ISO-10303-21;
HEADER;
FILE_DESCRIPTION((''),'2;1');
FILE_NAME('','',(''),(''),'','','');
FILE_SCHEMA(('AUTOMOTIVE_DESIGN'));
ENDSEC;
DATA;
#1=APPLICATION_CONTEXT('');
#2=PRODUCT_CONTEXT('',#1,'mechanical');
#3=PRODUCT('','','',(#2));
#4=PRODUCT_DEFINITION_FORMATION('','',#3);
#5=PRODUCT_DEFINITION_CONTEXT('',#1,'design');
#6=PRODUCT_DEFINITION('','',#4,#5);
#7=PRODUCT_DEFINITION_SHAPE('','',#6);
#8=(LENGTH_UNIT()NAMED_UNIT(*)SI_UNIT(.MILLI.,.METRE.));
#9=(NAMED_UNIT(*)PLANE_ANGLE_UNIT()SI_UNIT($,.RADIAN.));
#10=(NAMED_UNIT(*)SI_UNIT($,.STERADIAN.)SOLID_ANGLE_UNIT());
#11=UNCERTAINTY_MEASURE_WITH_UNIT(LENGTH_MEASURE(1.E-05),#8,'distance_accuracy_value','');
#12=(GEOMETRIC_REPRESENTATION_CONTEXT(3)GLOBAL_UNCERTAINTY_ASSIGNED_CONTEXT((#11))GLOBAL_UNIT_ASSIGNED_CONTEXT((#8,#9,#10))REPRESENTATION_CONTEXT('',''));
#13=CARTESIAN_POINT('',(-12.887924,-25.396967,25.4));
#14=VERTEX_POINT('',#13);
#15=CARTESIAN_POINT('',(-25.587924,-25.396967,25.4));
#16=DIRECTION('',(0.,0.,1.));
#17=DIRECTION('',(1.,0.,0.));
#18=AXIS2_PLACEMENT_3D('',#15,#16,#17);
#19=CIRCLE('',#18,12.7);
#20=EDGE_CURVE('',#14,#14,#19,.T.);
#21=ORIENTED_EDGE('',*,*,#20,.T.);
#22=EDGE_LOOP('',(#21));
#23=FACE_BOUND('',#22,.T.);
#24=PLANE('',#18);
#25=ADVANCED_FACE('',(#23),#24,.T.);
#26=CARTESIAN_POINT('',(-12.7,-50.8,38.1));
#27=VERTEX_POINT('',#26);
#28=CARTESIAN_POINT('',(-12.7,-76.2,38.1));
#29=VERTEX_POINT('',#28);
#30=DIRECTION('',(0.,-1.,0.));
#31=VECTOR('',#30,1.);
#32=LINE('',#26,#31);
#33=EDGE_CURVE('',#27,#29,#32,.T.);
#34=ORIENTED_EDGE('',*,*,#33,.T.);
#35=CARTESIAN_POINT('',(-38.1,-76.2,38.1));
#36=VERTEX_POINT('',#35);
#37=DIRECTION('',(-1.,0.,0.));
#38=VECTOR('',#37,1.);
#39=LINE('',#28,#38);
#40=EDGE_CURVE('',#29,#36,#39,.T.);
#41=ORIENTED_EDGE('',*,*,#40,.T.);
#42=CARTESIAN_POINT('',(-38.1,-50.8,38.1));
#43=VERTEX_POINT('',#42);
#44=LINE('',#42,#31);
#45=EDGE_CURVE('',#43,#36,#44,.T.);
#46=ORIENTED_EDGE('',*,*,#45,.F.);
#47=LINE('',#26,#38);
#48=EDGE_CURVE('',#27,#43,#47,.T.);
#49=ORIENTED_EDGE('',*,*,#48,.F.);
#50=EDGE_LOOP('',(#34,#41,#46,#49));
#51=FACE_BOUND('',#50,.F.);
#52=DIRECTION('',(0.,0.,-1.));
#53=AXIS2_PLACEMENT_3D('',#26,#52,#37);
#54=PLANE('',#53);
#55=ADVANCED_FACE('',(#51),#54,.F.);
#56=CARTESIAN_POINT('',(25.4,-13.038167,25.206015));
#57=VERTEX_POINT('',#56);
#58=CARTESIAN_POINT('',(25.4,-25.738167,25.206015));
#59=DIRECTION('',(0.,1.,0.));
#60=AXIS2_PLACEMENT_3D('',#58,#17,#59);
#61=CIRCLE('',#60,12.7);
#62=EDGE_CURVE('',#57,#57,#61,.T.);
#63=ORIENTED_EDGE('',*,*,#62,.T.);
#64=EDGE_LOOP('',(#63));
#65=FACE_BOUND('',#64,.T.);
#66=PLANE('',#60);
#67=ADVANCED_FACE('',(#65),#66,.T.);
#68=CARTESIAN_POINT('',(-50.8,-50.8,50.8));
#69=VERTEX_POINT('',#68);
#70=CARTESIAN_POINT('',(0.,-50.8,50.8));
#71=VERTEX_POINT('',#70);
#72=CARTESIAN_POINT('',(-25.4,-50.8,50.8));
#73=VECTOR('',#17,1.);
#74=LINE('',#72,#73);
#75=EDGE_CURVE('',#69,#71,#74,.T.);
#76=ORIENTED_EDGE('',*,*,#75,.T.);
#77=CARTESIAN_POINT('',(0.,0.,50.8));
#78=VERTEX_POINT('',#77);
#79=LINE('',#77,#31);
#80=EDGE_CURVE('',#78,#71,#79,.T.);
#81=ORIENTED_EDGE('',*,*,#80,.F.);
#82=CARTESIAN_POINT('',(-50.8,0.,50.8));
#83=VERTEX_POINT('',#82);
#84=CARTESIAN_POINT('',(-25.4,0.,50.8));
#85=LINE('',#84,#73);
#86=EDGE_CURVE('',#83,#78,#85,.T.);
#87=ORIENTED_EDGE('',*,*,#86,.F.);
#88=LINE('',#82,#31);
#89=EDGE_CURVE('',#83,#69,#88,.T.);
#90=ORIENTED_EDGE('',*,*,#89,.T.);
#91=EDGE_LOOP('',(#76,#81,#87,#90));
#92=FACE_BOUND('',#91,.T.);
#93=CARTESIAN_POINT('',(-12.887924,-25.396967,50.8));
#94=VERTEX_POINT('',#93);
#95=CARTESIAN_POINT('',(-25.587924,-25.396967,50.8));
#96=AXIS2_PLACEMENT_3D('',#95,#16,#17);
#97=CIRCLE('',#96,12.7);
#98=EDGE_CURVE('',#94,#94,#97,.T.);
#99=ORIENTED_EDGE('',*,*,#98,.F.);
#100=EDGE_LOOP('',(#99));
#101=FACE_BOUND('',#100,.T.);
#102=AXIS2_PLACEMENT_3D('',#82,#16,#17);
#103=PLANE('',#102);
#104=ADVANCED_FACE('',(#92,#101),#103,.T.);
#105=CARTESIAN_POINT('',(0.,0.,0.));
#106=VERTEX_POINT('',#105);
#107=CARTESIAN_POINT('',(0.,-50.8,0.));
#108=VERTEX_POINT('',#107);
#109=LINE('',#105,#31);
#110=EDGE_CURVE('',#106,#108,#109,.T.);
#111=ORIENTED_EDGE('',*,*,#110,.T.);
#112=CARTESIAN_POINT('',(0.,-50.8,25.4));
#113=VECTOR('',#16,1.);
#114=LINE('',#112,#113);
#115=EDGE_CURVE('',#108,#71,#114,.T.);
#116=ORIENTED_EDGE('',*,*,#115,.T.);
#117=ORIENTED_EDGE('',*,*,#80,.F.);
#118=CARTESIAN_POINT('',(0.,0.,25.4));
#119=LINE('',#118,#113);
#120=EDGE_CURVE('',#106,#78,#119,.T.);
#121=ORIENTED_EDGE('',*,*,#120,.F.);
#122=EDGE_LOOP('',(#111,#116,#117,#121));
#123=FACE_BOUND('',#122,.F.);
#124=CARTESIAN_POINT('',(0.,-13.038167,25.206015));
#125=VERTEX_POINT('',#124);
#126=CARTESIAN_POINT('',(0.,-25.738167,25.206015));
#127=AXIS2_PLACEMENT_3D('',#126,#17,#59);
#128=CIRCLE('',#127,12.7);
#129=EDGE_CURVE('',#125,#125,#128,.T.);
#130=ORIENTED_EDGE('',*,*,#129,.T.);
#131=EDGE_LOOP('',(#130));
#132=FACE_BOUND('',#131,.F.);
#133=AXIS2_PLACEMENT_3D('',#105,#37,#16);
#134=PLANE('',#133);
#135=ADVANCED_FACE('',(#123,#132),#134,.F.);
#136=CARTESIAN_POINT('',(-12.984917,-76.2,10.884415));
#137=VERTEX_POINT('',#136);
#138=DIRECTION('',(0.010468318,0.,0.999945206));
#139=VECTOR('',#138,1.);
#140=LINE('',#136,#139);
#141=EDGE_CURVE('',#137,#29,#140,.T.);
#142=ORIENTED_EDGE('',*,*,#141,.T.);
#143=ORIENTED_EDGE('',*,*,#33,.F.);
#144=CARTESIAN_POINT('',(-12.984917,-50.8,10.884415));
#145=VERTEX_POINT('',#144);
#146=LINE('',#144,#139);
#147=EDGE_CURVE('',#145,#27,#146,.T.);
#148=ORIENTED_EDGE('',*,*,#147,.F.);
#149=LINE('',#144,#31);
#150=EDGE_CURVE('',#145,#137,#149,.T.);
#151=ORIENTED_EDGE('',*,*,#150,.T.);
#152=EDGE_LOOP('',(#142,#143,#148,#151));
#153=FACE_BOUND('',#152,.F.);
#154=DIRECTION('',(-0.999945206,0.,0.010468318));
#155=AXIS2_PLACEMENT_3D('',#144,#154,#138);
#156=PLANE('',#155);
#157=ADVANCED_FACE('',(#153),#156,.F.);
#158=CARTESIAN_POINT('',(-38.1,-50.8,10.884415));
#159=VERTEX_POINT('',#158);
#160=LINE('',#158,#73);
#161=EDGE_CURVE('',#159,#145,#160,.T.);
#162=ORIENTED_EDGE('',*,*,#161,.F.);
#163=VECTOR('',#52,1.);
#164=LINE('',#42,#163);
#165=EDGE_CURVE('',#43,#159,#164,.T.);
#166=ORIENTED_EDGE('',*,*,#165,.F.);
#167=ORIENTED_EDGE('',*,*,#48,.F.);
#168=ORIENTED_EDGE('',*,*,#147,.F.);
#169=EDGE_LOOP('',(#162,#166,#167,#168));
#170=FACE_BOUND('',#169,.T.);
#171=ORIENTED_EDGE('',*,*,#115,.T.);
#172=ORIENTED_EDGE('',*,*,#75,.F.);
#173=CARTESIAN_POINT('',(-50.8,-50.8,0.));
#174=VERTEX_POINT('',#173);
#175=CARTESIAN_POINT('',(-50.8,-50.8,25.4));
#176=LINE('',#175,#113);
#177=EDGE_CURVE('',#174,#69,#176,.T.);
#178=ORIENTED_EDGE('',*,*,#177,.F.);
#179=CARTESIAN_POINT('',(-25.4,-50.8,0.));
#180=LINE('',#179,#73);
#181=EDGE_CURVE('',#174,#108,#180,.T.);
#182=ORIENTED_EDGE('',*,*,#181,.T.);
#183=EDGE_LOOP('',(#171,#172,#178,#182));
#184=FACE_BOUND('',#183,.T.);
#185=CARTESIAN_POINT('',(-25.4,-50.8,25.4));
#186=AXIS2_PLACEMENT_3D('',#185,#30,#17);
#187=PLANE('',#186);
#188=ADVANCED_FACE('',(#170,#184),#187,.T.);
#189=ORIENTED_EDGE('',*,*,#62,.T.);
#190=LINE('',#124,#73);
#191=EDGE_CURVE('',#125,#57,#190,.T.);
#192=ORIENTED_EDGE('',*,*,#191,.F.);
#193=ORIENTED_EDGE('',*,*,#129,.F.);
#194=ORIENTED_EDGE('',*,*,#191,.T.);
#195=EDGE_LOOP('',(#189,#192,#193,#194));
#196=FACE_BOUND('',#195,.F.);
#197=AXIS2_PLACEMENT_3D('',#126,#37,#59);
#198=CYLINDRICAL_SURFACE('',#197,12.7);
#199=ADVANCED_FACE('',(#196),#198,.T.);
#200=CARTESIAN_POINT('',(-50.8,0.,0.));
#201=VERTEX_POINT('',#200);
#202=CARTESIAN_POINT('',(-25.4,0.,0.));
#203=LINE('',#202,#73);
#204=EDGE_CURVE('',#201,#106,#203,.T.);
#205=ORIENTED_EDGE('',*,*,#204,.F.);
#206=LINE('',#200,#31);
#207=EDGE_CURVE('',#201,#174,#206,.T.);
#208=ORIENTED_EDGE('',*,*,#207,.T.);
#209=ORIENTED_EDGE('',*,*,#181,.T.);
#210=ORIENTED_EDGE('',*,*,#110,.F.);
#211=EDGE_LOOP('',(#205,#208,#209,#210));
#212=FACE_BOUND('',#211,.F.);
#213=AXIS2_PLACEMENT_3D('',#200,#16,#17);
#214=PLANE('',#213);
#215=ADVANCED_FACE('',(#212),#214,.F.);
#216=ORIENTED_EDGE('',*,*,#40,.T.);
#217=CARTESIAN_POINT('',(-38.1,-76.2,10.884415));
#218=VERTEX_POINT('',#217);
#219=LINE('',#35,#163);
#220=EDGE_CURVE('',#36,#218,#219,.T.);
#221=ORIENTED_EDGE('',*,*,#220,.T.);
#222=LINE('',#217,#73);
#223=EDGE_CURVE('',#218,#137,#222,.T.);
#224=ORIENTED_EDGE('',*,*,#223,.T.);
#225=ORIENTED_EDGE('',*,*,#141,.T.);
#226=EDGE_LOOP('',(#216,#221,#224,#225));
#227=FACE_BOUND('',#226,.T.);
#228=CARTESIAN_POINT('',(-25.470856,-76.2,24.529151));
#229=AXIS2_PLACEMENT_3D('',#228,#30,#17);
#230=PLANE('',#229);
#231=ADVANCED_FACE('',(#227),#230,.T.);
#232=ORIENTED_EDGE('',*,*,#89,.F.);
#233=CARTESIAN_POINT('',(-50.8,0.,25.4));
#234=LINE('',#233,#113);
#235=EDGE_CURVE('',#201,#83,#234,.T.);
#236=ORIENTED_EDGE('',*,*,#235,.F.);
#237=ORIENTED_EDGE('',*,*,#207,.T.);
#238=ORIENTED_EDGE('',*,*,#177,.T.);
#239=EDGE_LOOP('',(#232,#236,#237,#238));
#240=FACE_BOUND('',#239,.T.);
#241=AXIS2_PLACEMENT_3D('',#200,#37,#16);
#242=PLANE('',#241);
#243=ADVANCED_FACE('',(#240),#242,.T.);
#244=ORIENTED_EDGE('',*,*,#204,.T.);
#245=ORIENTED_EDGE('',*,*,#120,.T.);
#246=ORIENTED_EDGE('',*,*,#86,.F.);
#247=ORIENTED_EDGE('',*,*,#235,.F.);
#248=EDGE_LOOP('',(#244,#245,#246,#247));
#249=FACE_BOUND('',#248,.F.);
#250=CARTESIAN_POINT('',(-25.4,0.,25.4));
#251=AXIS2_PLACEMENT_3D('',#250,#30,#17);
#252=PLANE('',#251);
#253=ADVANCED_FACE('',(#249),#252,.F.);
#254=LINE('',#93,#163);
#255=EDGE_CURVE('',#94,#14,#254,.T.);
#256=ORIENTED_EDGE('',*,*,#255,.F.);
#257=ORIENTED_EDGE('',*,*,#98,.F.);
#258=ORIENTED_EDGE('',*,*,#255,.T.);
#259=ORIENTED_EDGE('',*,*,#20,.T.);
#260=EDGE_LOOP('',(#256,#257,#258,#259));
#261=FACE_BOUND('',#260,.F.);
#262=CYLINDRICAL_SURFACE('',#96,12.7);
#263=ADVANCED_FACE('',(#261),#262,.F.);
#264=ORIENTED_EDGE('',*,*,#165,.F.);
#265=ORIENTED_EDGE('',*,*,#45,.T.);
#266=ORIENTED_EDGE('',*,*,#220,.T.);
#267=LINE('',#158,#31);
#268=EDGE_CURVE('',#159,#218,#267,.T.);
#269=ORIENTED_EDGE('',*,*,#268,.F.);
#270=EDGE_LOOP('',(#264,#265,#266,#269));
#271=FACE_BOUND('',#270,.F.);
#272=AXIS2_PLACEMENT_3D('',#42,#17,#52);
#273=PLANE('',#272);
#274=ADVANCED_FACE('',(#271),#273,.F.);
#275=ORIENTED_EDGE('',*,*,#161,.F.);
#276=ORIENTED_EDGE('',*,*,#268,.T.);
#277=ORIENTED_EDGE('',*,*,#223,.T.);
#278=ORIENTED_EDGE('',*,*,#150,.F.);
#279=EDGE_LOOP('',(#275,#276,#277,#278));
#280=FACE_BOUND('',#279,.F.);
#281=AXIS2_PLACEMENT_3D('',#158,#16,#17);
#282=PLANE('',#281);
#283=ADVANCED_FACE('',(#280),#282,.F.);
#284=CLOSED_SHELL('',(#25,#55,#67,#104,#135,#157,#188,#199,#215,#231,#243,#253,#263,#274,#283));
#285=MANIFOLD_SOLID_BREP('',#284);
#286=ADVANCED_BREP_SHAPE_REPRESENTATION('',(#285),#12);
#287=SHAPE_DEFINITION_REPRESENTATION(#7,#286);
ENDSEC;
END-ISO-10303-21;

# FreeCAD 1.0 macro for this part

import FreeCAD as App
import Part
import Sketcher

V = App.Vector
Q = App.Units.Quantity


def add_polygon(sketch, points):
    """Adds a closed chain of lines whose ends are joined by coincident constraints."""
    first, n = sketch.GeometryCount, len(points)
    for a, b in zip(points, points[1:] + points[:1]):
        sketch.addGeometry(Part.LineSegment(App.Vector(*a, 0), App.Vector(*b, 0)), False)
    for i in range(n):
        sketch.addConstraint(Sketcher.Constraint("Coincident", first + i, 2, first + (i + 1) % n, 1))

doc = App.newDocument("Part")
body = doc.addObject("PartDesign::Body", "Body")

# Sketch on XZ plane
sketch1 = body.newObject("Sketcher::SketchObject", "Sketch")
sketch1.AttachmentSupport = (doc.getObject("XZ_Plane"), [""])
sketch1.MapMode = "FlatFace"
add_polygon(sketch1, [(-51, 51), (-51, 0), (0, 0), (0, 51)])  # lines 0-3
sketch1.addConstraint(Sketcher.Constraint("Vertical", 0))
sketch1.addConstraint(Sketcher.Constraint("Horizontal", 1))
sketch1.addConstraint(Sketcher.Constraint("Vertical", 2))
sketch1.addConstraint(Sketcher.Constraint("Horizontal", 3))
sketch1.addConstraint(Sketcher.Constraint("Coincident", 1, 2, -1, 1))
sketch1.addConstraint(Sketcher.Constraint("Equal", 3, 0))
sketch1.addConstraint(Sketcher.Constraint("DistanceX", 1, 1, 1, 2, Q("2 in")))
pad1 = body.newObject("PartDesign::Pad", "Pad")
pad1.Profile = sketch1
pad1.Length = Q("2 in")

# Sketch on XZ plane
sketch2 = body.newObject("Sketcher::SketchObject", "Sketch001")
sketch2.AttachmentSupport = (doc.getObject("XZ_Plane"), [""])
sketch2.MapMode = "FlatFace"
sketch2.AttachmentOffset = App.Placement(V(0, 0, 2 * 25.4), App.Rotation())
add_polygon(sketch2, [(-13, 38), (-38, 38), (-38, 11), (-13, 11)])  # lines 0-3
sketch2.addConstraint(Sketcher.Constraint("Horizontal", 0))
sketch2.addConstraint(Sketcher.Constraint("Vertical", 1))
sketch2.addConstraint(Sketcher.Constraint("Horizontal", 2))
sketch2.addConstraint(Sketcher.Constraint("DistanceX", 0, 2, 0, 1, Q("1 in")))
sketch2.addConstraint(Sketcher.Constraint("DistanceX", 0, 2, -1, 1, Q("1.5 in")))
sketch2.addConstraint(Sketcher.Constraint("DistanceY", -1, 1, 0, 2, Q("1.5 in")))
sketch2.addConstraint(Sketcher.Constraint("DistanceX", 2, 1, 2, 2, Q("25.115083 mm")))
sketch2.addConstraint(Sketcher.Constraint("DistanceY", 1, 2, 1, 1, Q("27.215585 mm")))
pad2 = body.newObject("PartDesign::Pad", "Pad001")
pad2.Profile = sketch2
pad2.Length = Q("1 in")

# Sketch on YZ plane
sketch3 = body.newObject("Sketcher::SketchObject", "Sketch002")
sketch3.AttachmentSupport = (doc.getObject("YZ_Plane"), [""])
sketch3.MapMode = "FlatFace"
sketch3.addGeometry(Part.Circle(V(-26, 25, 0), V(0, 0, 1), 13), False)
sketch3.addConstraint(Sketcher.Constraint("Diameter", 0, Q("1 in")))
sketch3.addConstraint(Sketcher.Constraint("DistanceX", 0, 3, -1, 1, Q("25.738167 mm")))
sketch3.addConstraint(Sketcher.Constraint("DistanceY", -1, 1, 0, 3, Q("25.206015 mm")))
pad3 = body.newObject("PartDesign::Pad", "Pad002")
pad3.Profile = sketch3
pad3.Length = Q("1 in")

# Sketch on XY plane
sketch4 = body.newObject("Sketcher::SketchObject", "Sketch003")
sketch4.AttachmentSupport = (doc.getObject("XY_Plane"), [""])
sketch4.MapMode = "FlatFace"
sketch4.AttachmentOffset = App.Placement(V(0, 0, 2 * 25.4), App.Rotation())
sketch4.addGeometry(Part.Circle(V(-26, -25, 0), V(0, 0, 1), 13), False)
sketch4.addConstraint(Sketcher.Constraint("Diameter", 0, Q("1 in")))
sketch4.addConstraint(Sketcher.Constraint("DistanceX", 0, 3, -1, 1, Q("25.587924 mm")))
sketch4.addConstraint(Sketcher.Constraint("DistanceY", 0, 3, -1, 1, Q("25.396967 mm")))
pocket1 = body.newObject("PartDesign::Pocket", "Pocket")
pocket1.Profile = sketch4
pocket1.Length = Q("1 in")

doc.recompute()
